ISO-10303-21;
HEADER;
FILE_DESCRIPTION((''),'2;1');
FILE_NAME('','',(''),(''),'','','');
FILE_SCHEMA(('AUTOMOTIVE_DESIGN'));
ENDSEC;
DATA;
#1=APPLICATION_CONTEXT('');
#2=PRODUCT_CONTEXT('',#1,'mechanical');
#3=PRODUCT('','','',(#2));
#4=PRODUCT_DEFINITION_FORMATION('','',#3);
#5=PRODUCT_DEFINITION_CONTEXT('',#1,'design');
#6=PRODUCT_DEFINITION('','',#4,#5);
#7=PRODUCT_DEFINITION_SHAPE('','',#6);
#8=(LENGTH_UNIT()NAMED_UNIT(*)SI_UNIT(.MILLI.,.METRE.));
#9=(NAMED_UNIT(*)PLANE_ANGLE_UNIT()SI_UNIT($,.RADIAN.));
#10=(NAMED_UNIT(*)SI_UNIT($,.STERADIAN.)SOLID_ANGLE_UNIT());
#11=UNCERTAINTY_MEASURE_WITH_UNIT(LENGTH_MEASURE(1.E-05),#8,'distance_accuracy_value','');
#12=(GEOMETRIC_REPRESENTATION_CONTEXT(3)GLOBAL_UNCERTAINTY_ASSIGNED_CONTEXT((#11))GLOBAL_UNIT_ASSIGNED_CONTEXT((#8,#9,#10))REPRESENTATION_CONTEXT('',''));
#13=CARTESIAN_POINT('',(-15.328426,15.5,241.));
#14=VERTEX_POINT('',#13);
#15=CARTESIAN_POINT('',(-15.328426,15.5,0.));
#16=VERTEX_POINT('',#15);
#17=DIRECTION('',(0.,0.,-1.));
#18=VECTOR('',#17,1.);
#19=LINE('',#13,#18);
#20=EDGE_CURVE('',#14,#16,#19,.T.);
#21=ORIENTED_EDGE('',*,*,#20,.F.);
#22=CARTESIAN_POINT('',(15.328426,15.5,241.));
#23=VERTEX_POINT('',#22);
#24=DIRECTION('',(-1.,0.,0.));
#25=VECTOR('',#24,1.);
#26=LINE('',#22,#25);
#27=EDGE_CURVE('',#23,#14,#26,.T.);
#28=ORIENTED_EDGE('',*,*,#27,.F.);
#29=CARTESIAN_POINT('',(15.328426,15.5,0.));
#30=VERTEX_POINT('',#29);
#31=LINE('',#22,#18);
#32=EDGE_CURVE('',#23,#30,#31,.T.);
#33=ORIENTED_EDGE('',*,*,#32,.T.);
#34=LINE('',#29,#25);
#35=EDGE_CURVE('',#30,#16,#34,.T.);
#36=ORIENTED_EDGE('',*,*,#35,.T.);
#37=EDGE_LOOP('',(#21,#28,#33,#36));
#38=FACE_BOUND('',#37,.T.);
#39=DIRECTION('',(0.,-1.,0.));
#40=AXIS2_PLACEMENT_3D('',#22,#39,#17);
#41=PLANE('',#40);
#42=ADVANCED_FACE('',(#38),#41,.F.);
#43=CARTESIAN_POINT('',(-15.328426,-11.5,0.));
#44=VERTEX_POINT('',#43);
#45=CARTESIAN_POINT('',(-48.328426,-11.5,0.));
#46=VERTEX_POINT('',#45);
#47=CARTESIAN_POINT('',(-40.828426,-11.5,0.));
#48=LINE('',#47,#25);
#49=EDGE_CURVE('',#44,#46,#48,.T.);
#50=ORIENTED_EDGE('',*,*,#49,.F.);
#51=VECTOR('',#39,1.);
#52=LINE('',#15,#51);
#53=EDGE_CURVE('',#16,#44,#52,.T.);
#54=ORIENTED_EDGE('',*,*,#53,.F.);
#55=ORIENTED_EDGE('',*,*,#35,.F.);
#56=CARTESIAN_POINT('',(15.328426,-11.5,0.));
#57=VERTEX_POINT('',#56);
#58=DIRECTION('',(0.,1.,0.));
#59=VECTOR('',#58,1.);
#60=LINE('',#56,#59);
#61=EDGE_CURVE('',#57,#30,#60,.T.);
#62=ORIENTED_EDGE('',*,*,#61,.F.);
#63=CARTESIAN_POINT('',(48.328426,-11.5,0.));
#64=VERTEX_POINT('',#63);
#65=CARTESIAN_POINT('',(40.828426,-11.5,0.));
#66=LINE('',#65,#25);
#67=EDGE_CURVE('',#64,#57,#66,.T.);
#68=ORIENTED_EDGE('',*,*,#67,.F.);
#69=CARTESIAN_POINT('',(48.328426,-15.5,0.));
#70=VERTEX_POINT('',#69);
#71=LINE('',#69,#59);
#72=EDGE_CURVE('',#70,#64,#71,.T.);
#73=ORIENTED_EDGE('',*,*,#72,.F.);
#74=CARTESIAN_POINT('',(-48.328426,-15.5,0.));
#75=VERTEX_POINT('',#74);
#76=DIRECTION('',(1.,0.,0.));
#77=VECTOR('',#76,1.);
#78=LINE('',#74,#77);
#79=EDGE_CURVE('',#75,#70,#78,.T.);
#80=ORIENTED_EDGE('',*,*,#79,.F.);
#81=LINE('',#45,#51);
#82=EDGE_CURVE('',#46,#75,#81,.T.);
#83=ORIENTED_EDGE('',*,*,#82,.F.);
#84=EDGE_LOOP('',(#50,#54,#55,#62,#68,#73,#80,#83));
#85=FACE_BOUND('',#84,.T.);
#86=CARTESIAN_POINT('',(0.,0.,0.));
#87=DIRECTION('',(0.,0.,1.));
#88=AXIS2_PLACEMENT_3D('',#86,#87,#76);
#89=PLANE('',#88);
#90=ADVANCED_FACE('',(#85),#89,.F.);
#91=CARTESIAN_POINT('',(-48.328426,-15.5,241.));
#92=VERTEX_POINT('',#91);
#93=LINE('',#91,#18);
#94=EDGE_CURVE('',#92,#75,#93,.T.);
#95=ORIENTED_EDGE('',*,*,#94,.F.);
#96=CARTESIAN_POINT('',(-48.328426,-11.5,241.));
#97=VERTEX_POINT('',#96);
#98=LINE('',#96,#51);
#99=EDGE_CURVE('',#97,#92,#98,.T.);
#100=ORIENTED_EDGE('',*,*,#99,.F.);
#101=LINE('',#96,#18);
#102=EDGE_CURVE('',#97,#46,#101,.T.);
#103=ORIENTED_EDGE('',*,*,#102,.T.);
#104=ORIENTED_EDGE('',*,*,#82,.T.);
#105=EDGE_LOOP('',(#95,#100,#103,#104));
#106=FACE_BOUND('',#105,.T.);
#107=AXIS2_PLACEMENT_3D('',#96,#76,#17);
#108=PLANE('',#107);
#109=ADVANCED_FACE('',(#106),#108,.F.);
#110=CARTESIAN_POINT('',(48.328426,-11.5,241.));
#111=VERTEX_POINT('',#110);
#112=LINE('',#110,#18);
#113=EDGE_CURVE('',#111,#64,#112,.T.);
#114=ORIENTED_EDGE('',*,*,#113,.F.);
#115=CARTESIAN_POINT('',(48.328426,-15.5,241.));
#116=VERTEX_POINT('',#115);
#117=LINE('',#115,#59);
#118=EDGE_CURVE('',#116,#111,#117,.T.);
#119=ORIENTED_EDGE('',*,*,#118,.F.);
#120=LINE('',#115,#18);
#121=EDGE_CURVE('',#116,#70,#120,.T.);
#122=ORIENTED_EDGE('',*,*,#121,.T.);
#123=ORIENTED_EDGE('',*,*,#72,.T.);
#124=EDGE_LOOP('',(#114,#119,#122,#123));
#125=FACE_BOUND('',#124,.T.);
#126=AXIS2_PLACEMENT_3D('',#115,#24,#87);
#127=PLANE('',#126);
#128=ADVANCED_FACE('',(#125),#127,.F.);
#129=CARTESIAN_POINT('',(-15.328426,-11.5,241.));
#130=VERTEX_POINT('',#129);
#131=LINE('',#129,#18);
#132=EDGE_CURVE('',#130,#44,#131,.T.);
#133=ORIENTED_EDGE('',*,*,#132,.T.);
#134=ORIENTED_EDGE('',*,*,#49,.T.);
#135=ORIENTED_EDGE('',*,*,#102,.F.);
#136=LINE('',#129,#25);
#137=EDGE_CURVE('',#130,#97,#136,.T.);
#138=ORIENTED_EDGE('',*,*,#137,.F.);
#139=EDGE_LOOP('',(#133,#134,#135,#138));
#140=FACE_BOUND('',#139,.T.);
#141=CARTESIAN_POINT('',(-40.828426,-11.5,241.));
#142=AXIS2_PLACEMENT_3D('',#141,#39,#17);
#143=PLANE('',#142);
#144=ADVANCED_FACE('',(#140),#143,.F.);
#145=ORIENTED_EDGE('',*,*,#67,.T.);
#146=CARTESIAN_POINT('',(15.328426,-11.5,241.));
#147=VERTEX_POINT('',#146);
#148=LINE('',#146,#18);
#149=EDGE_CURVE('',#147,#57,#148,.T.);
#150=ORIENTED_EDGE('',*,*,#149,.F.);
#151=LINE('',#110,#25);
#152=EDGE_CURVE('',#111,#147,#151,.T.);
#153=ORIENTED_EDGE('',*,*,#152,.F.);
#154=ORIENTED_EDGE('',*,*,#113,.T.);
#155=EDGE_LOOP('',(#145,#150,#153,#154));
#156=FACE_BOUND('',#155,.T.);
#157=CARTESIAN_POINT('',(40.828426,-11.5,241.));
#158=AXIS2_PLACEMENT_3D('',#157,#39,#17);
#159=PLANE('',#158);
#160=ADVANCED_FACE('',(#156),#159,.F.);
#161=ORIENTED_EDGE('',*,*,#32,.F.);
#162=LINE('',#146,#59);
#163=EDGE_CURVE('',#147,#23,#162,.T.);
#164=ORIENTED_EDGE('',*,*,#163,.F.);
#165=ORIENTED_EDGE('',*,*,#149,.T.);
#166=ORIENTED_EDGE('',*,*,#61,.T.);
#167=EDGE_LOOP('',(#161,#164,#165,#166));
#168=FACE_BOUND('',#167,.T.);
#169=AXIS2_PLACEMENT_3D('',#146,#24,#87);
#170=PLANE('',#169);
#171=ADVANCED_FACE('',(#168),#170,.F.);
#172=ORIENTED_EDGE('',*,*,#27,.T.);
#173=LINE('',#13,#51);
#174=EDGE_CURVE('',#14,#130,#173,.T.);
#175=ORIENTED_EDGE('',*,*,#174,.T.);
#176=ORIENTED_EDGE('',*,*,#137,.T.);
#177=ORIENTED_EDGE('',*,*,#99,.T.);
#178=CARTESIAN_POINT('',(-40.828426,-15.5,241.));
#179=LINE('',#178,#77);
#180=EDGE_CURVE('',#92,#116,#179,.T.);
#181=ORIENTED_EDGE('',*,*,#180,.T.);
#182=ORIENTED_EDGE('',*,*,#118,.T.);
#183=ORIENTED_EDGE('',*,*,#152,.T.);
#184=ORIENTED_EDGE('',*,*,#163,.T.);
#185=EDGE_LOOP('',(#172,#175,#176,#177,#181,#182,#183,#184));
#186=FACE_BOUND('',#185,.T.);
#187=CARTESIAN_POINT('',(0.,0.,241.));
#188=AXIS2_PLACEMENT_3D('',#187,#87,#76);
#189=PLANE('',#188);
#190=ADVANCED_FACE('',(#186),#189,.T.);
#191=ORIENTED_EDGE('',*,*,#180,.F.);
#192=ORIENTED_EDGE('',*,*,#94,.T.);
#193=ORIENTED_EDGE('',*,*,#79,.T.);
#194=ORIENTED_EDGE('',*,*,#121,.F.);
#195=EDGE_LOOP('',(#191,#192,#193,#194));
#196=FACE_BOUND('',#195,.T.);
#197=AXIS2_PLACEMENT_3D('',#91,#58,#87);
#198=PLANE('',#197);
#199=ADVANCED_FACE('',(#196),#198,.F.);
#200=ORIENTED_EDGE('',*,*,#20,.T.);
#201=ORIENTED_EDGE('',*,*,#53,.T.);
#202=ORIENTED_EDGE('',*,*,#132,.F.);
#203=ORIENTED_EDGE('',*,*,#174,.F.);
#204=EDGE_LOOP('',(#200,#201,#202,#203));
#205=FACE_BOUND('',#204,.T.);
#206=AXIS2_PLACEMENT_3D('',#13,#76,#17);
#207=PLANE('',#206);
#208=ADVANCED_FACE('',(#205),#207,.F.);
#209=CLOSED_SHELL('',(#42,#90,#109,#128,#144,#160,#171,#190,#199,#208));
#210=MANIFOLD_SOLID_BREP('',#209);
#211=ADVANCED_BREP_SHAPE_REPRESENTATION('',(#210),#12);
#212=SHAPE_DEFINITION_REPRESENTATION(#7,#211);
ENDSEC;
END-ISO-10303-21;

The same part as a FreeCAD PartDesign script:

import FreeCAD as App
import Part
import Sketcher
from FreeCAD import Vector
Q = App.Units.Quantity


def add_polygon(sketch, points):
    """Adds a closed chain of lines whose ends are joined by coincident constraints."""
    first, n = sketch.GeometryCount, len(points)
    for a, b in zip(points, points[1:] + points[:1]):
        sketch.addGeometry(Part.LineSegment(App.Vector(*a, 0), App.Vector(*b, 0)), False)
    for i in range(n):
        sketch.addConstraint(Sketcher.Constraint("Coincident", first + i, 2, first + (i + 1) % n, 1))

doc = App.newDocument("Part")
body = doc.addObject("PartDesign::Body", "Body")

# Sketch on XY plane
sketch1 = doc.addObject("Sketcher::SketchObject", "Sketch")
body.addObject(sketch1)
sketch1.AttachmentSupport = (doc.XY_Plane, [""])
sketch1.MapMode = "FlatFace"
add_polygon(sketch1, [(48.3, -15.5), (48.3, -11.5), (15.3, -11.5), (15.3, 15.5), (-15.3, 15.5), (-15.3, -11.5), (-48.3, -11.5), (-48.3, -15.5)])  # lines 0-7
sketch1.addConstraint(Sketcher.Constraint("Vertical", 0))
sketch1.addConstraint(Sketcher.Constraint("Horizontal", 1))
sketch1.addConstraint(Sketcher.Constraint("Vertical", 2))
sketch1.addConstraint(Sketcher.Constraint("Horizontal", 3))
sketch1.addConstraint(Sketcher.Constraint("Vertical", 4))
sketch1.addConstraint(Sketcher.Constraint("Horizontal", 5))
sketch1.addConstraint(Sketcher.Constraint("Vertical", 6))
sketch1.addConstraint(Sketcher.Constraint("Horizontal", 7))
sketch1.addConstraint(Sketcher.Constraint("Symmetric", 1, 2, 4, 2, -2))
sketch1.addConstraint(Sketcher.Constraint("Equal", 1, 5))
sketch1.addConstraint(Sketcher.Constraint("DistanceX", 1, 2, 1, 1, Q("33 mm")))
sketch1.addConstraint(Sketcher.Constraint("DistanceY", 0, 1, 0, 2, Q("4 mm")))
sketch1.addConstraint(Sketcher.Constraint("DistanceY", 2, 1, 2, 2, Q("27 mm")))
sketch1.addConstraint(Sketcher.Constraint("DistanceY", 0, 2, -1, 1, Q("11.5 mm")))
sketch1.addConstraint(Sketcher.Constraint("DistanceX", 3, 2, 3, 1, Q("30.656853 mm")))
pad1 = doc.addObject("PartDesign::Pad", "Pad")
body.addObject(pad1)
pad1.Profile = sketch1
pad1.Length = 241

doc.recompute()
